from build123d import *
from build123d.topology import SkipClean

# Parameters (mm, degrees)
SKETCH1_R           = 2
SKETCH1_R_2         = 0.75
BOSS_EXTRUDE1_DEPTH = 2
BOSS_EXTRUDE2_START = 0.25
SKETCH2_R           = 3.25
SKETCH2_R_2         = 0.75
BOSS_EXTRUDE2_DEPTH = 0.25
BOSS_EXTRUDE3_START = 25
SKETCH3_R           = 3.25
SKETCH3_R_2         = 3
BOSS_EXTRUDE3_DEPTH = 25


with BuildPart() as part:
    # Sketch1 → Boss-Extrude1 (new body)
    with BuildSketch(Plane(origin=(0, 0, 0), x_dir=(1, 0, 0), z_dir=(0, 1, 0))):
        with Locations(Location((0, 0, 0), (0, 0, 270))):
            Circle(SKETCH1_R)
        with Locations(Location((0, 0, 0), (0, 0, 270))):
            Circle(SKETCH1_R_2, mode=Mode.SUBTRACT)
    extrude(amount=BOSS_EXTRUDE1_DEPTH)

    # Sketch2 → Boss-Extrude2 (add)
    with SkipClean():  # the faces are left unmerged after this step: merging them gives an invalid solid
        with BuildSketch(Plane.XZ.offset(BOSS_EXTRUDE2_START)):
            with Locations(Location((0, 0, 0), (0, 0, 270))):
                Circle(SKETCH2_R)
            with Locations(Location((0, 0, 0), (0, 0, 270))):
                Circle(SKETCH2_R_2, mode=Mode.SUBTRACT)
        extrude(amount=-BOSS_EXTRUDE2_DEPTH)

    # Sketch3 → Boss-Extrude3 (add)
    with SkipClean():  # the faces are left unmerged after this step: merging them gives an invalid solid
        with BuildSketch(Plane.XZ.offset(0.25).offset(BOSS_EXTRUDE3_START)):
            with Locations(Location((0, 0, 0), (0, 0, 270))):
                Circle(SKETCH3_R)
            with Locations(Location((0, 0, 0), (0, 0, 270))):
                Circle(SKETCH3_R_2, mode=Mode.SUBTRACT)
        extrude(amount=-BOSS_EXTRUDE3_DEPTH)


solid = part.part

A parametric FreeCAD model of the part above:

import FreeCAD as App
import Part
import Sketcher

V = App.Vector

doc = App.newDocument("Part")
params = doc.addObject("Spreadsheet::Sheet", "Params")
for row, (alias, value) in enumerate([
    ("sketch1_diameter", "4 mm"),
    ("sketch1_diameter2", "1.5 mm"),
    ("pad1_length", "2 mm"),
    ("sketch2_diameter", "6.5 mm"),
    ("sketch2_diameter2", "1.5 mm"),
    ("pad2_length", "0.25 mm"),
    ("sketch3_diameter", "6 mm"),
    ("sketch3_diameter2", "6.5 mm"),
    ("pad3_length", "25 mm"),
], start=1):
    params.set(f"A{row}", alias)
    params.set(f"B{row}", "=" + value)
    params.setAlias(f"B{row}", alias)

body = doc.addObject("PartDesign::Body", "Body")

sketch1 = doc.addObject("Sketcher::SketchObject", "Sketch")
body.addObject(sketch1)
sketch1.AttachmentSupport = (doc.XZ_Plane, [""])
sketch1.MapMode = "FlatFace"
sketch1.addGeometry(Part.Circle(V(0, 0, 0), V(0, 0, 1), 2), False)
sketch1.addGeometry(Part.Circle(V(0, 0, 0), V(0, 0, 1), 0.75), False)
sketch1.addConstraint(Sketcher.Constraint("Coincident", 0, 3, -1, 1))
sketch1.addConstraint(Sketcher.Constraint("Coincident", 1, 3, -1, 1))
sketch1.addConstraint(Sketcher.Constraint("Diameter", 0, 4.0))
sketch1.addConstraint(Sketcher.Constraint("Diameter", 1, 1.5))
sketch1.setExpression("Constraints[2]", "Params.sketch1_diameter")
sketch1.setExpression("Constraints[3]", "Params.sketch1_diameter2")
pad1 = doc.addObject("PartDesign::Pad", "Pad")
body.addObject(pad1)
pad1.Profile = sketch1
pad1.setExpression("Length", "Params.pad1_length")
pad1.Reversed = True

sketch2 = doc.addObject("Sketcher::SketchObject", "Sketch001")
body.addObject(sketch2)
sketch2.AttachmentSupport = (doc.XZ_Plane, [""])
sketch2.MapMode = "FlatFace"
sketch2.AttachmentOffset = App.Placement(V(0, 0, 0.25), App.Rotation())
sketch2.addGeometry(Part.Circle(V(0, 0, 0), V(0, 0, 1), 3.25), False)
sketch2.addGeometry(Part.Circle(V(0, 0, 0), V(0, 0, 1), 0.75), False)
sketch2.addConstraint(Sketcher.Constraint("Coincident", 0, 3, -1, 1))
sketch2.addConstraint(Sketcher.Constraint("Coincident", 1, 3, -1, 1))
sketch2.addConstraint(Sketcher.Constraint("Diameter", 0, 6.5))
sketch2.addConstraint(Sketcher.Constraint("Diameter", 1, 1.5))
sketch2.setExpression("Constraints[2]", "Params.sketch2_diameter")
sketch2.setExpression("Constraints[3]", "Params.sketch2_diameter2")
pad2 = doc.addObject("PartDesign::Pad", "Pad001")
body.addObject(pad2)
pad2.Profile = sketch2
pad2.setExpression("Length", "Params.pad2_length")
pad2.Reversed = True

sketch3 = doc.addObject("Sketcher::SketchObject", "Sketch002")
body.addObject(sketch3)
sketch3.AttachmentSupport = (doc.XZ_Plane, [""])
sketch3.MapMode = "FlatFace"
sketch3.AttachmentOffset = App.Placement(V(0, 0, 25.25), App.Rotation())
sketch3.addGeometry(Part.Circle(V(0, 0, 0), V(0, 0, 1), 3.25), False)
sketch3.addGeometry(Part.Circle(V(0, 0, 0), V(0, 0, 1), 3), False)
sketch3.addConstraint(Sketcher.Constraint("Coincident", 0, 3, -1, 1))
sketch3.addConstraint(Sketcher.Constraint("Coincident", 1, 3, -1, 1))
sketch3.addConstraint(Sketcher.Constraint("Diameter", 1, 6.0))
sketch3.addConstraint(Sketcher.Constraint("Diameter", 0, 6.5))
sketch3.setExpression("Constraints[2]", "Params.sketch3_diameter")
sketch3.setExpression("Constraints[3]", "Params.sketch3_diameter2")
pad3 = doc.addObject("PartDesign::Pad", "Pad002")
body.addObject(pad3)
pad3.Profile = sketch3
pad3.setExpression("Length", "Params.pad3_length")
pad3.Reversed = True

doc.recompute()
